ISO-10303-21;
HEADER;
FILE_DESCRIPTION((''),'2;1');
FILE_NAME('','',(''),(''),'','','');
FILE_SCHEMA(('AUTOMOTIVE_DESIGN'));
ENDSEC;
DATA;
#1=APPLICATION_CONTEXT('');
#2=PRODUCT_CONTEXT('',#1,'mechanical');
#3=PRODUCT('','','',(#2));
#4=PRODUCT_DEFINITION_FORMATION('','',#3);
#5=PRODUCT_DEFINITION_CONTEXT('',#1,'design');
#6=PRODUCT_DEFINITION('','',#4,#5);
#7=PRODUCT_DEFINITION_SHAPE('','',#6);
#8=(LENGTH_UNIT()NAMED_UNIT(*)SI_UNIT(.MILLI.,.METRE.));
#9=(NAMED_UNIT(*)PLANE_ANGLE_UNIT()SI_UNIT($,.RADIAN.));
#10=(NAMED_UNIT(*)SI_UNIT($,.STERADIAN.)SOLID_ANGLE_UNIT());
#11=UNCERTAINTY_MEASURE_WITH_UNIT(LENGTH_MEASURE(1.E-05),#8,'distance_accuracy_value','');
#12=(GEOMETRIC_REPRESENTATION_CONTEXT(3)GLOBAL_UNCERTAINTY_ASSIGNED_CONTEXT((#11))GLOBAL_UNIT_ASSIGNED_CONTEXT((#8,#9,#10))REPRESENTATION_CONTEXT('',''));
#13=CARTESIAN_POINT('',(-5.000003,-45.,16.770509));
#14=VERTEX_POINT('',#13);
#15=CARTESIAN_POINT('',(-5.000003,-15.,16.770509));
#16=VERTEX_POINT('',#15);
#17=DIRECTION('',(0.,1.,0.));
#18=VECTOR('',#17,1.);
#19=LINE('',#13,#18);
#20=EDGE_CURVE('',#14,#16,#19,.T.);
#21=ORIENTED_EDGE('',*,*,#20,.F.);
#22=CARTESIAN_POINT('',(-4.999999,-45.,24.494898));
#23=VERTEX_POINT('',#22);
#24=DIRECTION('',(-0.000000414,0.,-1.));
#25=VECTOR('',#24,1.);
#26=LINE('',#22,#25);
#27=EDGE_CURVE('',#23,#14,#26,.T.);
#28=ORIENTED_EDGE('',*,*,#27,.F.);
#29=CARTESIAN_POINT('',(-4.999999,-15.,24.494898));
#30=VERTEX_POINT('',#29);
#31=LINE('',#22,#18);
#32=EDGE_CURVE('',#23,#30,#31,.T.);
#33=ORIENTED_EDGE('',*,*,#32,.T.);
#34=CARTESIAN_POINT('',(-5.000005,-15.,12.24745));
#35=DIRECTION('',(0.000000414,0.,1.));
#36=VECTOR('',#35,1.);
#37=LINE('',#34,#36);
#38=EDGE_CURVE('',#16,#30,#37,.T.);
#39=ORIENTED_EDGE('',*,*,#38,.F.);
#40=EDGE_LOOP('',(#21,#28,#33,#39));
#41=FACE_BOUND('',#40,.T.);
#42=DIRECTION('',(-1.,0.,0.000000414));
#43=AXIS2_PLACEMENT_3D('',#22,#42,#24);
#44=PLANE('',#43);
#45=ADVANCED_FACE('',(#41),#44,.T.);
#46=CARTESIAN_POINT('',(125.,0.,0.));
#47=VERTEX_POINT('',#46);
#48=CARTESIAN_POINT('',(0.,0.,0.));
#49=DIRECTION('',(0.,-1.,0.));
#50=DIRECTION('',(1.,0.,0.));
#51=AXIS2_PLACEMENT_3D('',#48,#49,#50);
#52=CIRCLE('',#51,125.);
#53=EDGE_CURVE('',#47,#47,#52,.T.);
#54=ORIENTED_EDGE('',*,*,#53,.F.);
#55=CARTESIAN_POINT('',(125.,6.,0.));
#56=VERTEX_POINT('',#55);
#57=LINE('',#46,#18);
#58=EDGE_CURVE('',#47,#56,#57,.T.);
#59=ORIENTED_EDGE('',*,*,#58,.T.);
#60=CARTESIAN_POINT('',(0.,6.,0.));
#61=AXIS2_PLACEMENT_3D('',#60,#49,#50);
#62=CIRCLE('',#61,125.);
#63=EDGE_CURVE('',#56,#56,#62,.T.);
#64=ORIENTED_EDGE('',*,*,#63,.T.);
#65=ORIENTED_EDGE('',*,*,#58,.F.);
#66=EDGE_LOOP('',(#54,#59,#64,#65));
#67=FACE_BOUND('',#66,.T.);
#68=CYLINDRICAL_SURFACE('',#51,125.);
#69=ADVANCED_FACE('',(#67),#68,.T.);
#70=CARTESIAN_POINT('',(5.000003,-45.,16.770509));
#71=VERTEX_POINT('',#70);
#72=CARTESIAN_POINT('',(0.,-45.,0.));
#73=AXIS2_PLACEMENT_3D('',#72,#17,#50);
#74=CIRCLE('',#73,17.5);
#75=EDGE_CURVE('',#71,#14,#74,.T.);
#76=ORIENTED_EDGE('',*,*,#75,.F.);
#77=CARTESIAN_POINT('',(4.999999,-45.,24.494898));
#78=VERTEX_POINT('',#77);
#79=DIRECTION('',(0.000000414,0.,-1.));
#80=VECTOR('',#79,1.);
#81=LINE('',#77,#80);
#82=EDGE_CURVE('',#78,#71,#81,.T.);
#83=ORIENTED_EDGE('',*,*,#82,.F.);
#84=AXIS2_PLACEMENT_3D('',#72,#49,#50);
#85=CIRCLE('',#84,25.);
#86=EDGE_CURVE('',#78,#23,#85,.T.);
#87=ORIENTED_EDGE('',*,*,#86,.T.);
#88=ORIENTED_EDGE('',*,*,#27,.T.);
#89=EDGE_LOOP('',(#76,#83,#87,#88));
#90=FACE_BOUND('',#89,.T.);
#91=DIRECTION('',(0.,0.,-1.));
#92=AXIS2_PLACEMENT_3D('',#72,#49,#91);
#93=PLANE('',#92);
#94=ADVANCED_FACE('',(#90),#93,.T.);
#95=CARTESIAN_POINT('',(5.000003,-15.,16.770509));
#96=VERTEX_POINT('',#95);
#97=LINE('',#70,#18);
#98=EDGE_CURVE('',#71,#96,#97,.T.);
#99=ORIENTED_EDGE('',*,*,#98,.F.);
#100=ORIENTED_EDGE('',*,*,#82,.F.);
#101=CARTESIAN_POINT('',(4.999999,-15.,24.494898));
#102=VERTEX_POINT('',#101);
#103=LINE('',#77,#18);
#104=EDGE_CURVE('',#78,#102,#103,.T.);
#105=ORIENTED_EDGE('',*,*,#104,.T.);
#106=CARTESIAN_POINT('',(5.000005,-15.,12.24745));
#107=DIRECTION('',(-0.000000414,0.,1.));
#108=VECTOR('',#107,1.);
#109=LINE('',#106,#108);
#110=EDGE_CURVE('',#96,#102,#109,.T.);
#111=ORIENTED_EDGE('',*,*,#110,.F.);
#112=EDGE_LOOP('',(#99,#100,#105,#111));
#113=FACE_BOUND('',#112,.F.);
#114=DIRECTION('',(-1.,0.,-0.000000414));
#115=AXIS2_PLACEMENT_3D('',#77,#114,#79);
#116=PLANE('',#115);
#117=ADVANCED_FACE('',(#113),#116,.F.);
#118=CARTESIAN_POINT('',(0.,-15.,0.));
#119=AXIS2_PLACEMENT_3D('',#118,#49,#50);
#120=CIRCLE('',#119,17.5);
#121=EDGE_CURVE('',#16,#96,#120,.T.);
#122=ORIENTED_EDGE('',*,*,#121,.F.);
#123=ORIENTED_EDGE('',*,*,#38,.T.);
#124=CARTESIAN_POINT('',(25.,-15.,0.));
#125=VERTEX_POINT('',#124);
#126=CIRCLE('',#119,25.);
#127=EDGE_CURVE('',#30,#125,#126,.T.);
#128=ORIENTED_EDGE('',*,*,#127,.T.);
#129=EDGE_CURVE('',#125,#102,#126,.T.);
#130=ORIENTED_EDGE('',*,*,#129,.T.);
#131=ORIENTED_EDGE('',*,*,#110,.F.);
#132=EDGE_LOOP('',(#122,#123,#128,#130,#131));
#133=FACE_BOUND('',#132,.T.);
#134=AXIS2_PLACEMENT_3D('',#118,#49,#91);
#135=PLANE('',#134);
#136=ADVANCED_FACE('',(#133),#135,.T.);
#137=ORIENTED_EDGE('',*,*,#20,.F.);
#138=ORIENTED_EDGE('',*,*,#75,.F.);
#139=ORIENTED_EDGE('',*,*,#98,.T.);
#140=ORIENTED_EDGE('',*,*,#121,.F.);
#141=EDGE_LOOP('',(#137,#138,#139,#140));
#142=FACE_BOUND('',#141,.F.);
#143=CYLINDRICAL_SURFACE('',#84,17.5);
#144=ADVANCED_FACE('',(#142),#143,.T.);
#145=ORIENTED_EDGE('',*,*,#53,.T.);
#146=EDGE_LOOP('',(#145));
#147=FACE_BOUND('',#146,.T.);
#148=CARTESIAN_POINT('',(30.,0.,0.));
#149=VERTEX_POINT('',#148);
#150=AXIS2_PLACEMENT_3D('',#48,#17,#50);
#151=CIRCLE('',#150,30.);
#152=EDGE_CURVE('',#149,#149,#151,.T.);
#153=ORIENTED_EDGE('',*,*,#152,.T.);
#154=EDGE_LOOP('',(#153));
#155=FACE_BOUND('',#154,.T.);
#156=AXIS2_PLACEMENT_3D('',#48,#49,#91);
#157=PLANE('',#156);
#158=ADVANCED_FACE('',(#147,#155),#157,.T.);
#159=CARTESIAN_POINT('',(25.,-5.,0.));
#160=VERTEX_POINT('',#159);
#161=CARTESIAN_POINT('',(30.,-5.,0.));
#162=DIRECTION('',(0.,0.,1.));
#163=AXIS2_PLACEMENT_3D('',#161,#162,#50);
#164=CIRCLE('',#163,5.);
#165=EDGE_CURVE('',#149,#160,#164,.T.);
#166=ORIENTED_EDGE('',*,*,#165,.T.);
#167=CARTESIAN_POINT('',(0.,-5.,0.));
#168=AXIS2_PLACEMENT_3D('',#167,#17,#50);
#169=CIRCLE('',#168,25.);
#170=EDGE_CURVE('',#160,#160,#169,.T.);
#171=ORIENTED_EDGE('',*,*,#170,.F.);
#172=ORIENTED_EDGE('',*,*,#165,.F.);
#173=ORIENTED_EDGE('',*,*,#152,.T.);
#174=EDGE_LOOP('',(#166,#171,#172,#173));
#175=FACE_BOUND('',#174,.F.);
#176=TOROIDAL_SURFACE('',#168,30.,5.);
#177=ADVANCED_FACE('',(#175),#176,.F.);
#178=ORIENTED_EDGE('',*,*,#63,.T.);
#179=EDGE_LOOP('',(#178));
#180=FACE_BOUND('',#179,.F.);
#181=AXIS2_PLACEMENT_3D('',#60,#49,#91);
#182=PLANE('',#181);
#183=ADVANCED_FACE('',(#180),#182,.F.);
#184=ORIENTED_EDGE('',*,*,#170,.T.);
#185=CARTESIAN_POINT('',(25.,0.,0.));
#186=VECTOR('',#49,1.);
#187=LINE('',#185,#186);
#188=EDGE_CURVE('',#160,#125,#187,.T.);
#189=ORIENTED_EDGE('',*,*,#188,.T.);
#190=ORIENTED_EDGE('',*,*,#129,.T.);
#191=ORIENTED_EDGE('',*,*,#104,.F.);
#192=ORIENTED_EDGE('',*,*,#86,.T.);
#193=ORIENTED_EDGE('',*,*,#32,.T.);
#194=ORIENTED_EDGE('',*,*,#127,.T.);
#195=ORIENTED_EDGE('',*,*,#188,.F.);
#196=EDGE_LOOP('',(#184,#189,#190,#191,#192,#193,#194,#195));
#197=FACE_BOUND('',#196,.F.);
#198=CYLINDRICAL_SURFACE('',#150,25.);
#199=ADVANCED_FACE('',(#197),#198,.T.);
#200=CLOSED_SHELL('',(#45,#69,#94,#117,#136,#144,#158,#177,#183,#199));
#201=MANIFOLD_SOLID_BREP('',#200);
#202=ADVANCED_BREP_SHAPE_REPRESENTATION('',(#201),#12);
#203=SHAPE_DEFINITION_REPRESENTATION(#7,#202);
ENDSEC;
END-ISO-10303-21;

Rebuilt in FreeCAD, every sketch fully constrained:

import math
import FreeCAD as App
import Part
import Sketcher

V = App.Vector


def edges_at(feature, points):
    """Names of the edges that pass closest to the given points."""
    edges = feature.Shape.Edges
    near = lambda p: min(range(len(edges)), key=lambda i: edges[i].distToShape(Part.Vertex(*p))[0])
    return sorted({f"Edge{near(p) + 1}" for p in points})

doc = App.newDocument("Part")
params = doc.addObject("Spreadsheet::Sheet", "Params")
for row, (alias, value) in enumerate([
    ("sketch1_diameter", "250 mm"),
    ("pad1_length", "6 mm"),
    ("sketch2_diameter", "50 mm"),
    ("pad2_length", "45 mm"),
    ("sketch3_radius", "25 mm"),
    ("sketch3_radius2", "17.5 mm"),
    ("pocket1_length", "45 mm"),
    ("sketch4_diameter", "50 mm"),
    ("pad3_length", "15 mm"),
    ("fillet_radius", "5 mm"),
], start=1):
    params.set(f"A{row}", alias)
    params.set(f"B{row}", "=" + value)
    params.setAlias(f"B{row}", alias)

body = doc.addObject("PartDesign::Body", "Body")

# Sketch on XZ plane
sketch1 = body.newObject("Sketcher::SketchObject", "Sketch")
sketch1.AttachmentSupport = (doc.getObject("XZ_Plane"), [""])
sketch1.MapMode = "FlatFace"
sketch1.addGeometry(Part.Circle(V(0, 0, 0), V(0, 0, 1), 125), False)
sketch1.addConstraint(Sketcher.Constraint("Coincident", 0, 3, -1, 1))
sketch1.addConstraint(Sketcher.Constraint("Diameter", 0, 250.0))
sketch1.setExpression("Constraints[1]", "Params.sketch1_diameter")
pad1 = body.newObject("PartDesign::Pad", "Pad")
pad1.Profile = sketch1
pad1.setExpression("Length", "Params.pad1_length")
pad1.Reversed = True

# Sketch on XZ plane
sketch2 = body.newObject("Sketcher::SketchObject", "Sketch001")
sketch2.AttachmentSupport = (doc.getObject("XZ_Plane"), [""])
sketch2.MapMode = "FlatFace"
sketch2.addGeometry(Part.Circle(V(0, 0, 0), V(0, 0, 1), 25), False)
sketch2.addConstraint(Sketcher.Constraint("Coincident", 0, 3, -1, 1))
sketch2.addConstraint(Sketcher.Constraint("Diameter", 0, 50.0))
sketch2.setExpression("Constraints[1]", "Params.sketch2_diameter")
pad2 = body.newObject("PartDesign::Pad", "Pad001")
pad2.Profile = sketch2
pad2.setExpression("Length", "Params.pad2_length")

# Sketch on XZ plane
sketch3 = body.newObject("Sketcher::SketchObject", "Sketch002")
sketch3.AttachmentSupport = (doc.getObject("XZ_Plane"), [""])
sketch3.MapMode = "FlatFace"
sketch3.AttachmentOffset = App.Placement(V(0, 0, 45), App.Rotation())
sketch3.addGeometry(Part.LineSegment(V(-5, 17, 0), V(-5, 24, 0)), False)
sketch3.addGeometry(Part.ArcOfCircle(Part.Circle(V(0, 0, 0), V(0, 0, 1), 25), math.radians(102), math.radians(438)), False)
sketch3.addGeometry(Part.LineSegment(V(5, 24, 0), V(5, 17, 0)), False)
sketch3.addGeometry(Part.ArcOfCircle(Part.Circle(V(0, 0, 0), V(0, 0, 1), 17), math.radians(107), math.radians(433)), False)
sketch3.addConstraint(Sketcher.Constraint("Coincident", 0, 2, 1, 1))
sketch3.addConstraint(Sketcher.Constraint("Coincident", 1, 2, 2, 1))
sketch3.addConstraint(Sketcher.Constraint("Coincident", 2, 2, 3, 2))
sketch3.addConstraint(Sketcher.Constraint("Coincident", 3, 1, 0, 1))
sketch3.addConstraint(Sketcher.Constraint("Vertical", 0))
sketch3.addConstraint(Sketcher.Constraint("Vertical", 2))
sketch3.addConstraint(Sketcher.Constraint("Coincident", 1, 3, -1, 1))
sketch3.addConstraint(Sketcher.Constraint("Coincident", 3, 3, -1, 1))
sketch3.addConstraint(Sketcher.Constraint("Horizontal", 0, 2, 1, 2))
sketch3.addConstraint(Sketcher.Constraint("Radius", 1, 25.0))
sketch3.addConstraint(Sketcher.Constraint("Radius", 3, 17.5))
sketch3.addConstraint(Sketcher.Constraint("DistanceX", 0, 2, -1, 1, 5.0))
sketch3.setExpression("Constraints[9]", "Params.sketch3_radius")
sketch3.setExpression("Constraints[10]", "Params.sketch3_radius2")
pocket1 = body.newObject("PartDesign::Pocket", "Pocket")
pocket1.Profile = sketch3
pocket1.setExpression("Length", "Params.pocket1_length")

# Sketch on XZ plane
sketch4 = body.newObject("Sketcher::SketchObject", "Sketch003")
sketch4.AttachmentSupport = (doc.getObject("XZ_Plane"), [""])
sketch4.MapMode = "FlatFace"
sketch4.addGeometry(Part.Circle(V(0, 0, 0), V(0, 0, 1), 25), False)
sketch4.addConstraint(Sketcher.Constraint("Coincident", 0, 3, -1, 1))
sketch4.addConstraint(Sketcher.Constraint("Diameter", 0, 50.0))
sketch4.setExpression("Constraints[1]", "Params.sketch4_diameter")
pad3 = body.newObject("PartDesign::Pad", "Pad002")
pad3.Profile = sketch4
pad3.setExpression("Length", "Params.pad3_length")
doc.recompute()

fillet = body.newObject("PartDesign::Fillet", "Fillet")
fillet.Base = (pad3, edges_at(pad3, [(-25, 0, 0)]))
fillet.setExpression("Radius", "Params.fillet_radius")

doc.recompute()
